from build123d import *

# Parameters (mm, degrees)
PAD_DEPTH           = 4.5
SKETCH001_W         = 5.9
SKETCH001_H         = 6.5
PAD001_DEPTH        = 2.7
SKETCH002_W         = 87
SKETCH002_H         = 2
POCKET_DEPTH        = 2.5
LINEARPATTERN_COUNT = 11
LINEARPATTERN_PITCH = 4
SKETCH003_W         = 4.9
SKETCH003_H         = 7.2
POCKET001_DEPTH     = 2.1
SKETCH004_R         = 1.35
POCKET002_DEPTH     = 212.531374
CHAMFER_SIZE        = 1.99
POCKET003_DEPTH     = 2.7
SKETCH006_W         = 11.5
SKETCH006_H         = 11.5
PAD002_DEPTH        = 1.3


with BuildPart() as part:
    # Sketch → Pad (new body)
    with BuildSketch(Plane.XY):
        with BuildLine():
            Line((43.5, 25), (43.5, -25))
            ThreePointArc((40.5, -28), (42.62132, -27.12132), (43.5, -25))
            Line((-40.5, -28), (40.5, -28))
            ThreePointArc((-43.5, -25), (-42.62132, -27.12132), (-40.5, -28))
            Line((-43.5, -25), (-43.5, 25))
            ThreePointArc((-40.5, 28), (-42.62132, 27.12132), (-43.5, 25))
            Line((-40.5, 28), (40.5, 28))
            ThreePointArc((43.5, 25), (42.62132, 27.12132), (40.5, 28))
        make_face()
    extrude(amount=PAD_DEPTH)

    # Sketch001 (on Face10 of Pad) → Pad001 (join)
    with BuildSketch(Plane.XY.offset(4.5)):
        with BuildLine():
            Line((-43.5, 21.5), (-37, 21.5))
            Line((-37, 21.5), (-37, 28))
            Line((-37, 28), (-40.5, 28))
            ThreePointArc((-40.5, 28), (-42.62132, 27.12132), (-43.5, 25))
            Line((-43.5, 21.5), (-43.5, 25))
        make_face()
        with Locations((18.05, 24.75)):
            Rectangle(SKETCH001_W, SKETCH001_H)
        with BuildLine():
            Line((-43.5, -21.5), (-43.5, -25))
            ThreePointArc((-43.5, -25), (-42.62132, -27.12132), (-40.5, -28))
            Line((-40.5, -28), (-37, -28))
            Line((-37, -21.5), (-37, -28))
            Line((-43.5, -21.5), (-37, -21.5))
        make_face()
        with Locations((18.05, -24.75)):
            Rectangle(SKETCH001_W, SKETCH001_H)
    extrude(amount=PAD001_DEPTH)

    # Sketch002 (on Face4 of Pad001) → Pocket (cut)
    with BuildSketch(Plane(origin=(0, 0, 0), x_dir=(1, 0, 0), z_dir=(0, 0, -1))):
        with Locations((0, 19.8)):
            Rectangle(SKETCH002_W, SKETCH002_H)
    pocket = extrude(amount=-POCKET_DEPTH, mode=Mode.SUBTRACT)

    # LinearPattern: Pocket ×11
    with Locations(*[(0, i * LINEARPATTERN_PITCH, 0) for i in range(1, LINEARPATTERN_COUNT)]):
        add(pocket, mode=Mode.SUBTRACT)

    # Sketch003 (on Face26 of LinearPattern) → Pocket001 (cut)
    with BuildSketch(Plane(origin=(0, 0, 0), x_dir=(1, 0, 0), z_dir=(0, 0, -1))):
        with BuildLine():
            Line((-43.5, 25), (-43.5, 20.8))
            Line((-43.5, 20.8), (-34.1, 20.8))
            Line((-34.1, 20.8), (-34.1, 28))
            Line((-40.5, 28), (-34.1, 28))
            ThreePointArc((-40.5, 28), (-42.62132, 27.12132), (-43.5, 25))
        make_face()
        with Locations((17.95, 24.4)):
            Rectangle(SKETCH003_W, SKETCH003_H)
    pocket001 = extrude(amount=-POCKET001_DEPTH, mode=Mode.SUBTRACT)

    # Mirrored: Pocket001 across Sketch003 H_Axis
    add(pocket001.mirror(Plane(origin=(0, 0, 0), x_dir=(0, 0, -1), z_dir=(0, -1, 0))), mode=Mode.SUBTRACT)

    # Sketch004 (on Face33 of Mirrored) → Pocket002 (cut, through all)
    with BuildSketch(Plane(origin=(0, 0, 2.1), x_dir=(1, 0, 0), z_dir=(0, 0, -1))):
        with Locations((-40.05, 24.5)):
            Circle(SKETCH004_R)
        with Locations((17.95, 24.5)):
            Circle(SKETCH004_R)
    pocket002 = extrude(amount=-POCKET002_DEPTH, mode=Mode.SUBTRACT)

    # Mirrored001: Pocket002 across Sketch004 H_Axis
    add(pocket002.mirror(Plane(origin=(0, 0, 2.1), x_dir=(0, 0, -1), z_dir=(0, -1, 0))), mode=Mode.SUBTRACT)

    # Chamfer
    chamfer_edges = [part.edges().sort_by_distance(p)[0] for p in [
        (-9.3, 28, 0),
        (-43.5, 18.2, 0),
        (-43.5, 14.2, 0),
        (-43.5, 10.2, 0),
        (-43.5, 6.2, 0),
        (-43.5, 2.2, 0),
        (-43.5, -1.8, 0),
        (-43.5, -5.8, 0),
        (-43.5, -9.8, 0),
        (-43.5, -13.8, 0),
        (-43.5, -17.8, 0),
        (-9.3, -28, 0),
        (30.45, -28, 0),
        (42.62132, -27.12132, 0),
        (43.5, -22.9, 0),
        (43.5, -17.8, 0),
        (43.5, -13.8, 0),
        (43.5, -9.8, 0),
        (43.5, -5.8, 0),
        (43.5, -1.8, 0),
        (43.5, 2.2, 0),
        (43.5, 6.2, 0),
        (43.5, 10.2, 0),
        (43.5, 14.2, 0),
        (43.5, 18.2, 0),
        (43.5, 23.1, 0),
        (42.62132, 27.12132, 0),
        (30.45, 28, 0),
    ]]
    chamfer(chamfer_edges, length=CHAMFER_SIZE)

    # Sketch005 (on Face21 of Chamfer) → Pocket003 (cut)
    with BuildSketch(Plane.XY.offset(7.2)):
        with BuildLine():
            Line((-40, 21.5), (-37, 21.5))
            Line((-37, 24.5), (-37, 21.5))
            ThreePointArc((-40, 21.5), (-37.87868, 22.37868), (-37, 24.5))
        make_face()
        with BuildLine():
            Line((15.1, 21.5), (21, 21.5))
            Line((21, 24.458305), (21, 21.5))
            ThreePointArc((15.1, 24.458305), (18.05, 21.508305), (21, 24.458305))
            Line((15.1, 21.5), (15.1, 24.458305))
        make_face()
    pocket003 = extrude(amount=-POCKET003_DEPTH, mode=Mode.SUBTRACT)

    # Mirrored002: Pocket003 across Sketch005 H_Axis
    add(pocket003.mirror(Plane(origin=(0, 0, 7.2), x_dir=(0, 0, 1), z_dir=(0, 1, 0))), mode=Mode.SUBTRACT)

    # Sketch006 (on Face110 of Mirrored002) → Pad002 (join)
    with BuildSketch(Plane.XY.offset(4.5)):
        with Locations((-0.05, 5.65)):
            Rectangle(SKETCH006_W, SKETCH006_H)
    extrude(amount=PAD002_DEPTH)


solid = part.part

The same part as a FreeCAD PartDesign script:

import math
import FreeCAD as App
import Part
import Sketcher
from FreeCAD import Vector


def edges_at(feature, points):
    """Names of the edges that pass closest to the given points."""
    edges = feature.Shape.Edges
    near = lambda p: min(range(len(edges)), key=lambda i: edges[i].distToShape(Part.Vertex(*p))[0])
    return sorted({f"Edge{near(p) + 1}" for p in points})


def add_polygon(sketch, points):
    """Adds a closed chain of lines whose ends are joined by coincident constraints."""
    first, n = sketch.GeometryCount, len(points)
    for a, b in zip(points, points[1:] + points[:1]):
        sketch.addGeometry(Part.LineSegment(App.Vector(*a, 0), App.Vector(*b, 0)), False)
    for i in range(n):
        sketch.addConstraint(Sketcher.Constraint("Coincident", first + i, 2, first + (i + 1) % n, 1))

doc = App.newDocument("Part")
body = doc.addObject("PartDesign::Body", "Body")

# Sketch on XY plane
sketch1 = doc.addObject("Sketcher::SketchObject", "Sketch")
body.addObject(sketch1)
sketch1.AttachmentSupport = (doc.XY_Plane, [""])
sketch1.MapMode = "FlatFace"
sketch1.addGeometry([
    Part.LineSegment(Vector(43.5, -25, 0), Vector(43.5, 25, 0)),  # 0
    Part.ArcOfCircle(Part.Circle(Vector(40.5, 25, 0), Vector(0, 0, 1), 3), math.radians(0), math.radians(90)),  # 1
    Part.LineSegment(Vector(40.5, 28, 0), Vector(-40.5, 28, 0)),  # 2
    Part.ArcOfCircle(Part.Circle(Vector(-40.5, 25, 0), Vector(0, 0, 1), 3), math.radians(90), math.radians(180)),  # 3
    Part.LineSegment(Vector(-43.5, 25, 0), Vector(-43.5, -25, 0)),  # 4
    Part.ArcOfCircle(Part.Circle(Vector(-40.5, -25, 0), Vector(0, 0, 1), 3), math.radians(-180), math.radians(-90)),  # 5
    Part.LineSegment(Vector(-40.5, -28, 0), Vector(40.5, -28, 0)),  # 6
    Part.ArcOfCircle(Part.Circle(Vector(40.5, -25, 0), Vector(0, 0, 1), 3), math.radians(-90), math.radians(0)),  # 7
], False)
sketch1.addConstraint([
    Sketcher.Constraint("Tangent", 0, 2, 1, 1),
    Sketcher.Constraint("Tangent", 1, 2, 2, 1),
    Sketcher.Constraint("Tangent", 2, 2, 3, 1),
    Sketcher.Constraint("Tangent", 3, 2, 4, 1),
    Sketcher.Constraint("Tangent", 4, 2, 5, 1),
    Sketcher.Constraint("Tangent", 5, 2, 6, 1),
    Sketcher.Constraint("Tangent", 6, 2, 7, 1),
    Sketcher.Constraint("Tangent", 7, 2, 0, 1),
    Sketcher.Constraint("Vertical", 0),
    Sketcher.Constraint("Horizontal", 2),
    Sketcher.Constraint("Vertical", 4),
    Sketcher.Constraint("Horizontal", 6),
    Sketcher.Constraint("Equal", 1, 3),
    Sketcher.Constraint("Equal", 3, 5),
    Sketcher.Constraint("Equal", 5, 7),
    Sketcher.Constraint("Symmetric", 1, 3, 5, 3, -1, 1),
    Sketcher.Constraint("Radius", 1, 3.000001),
    Sketcher.Constraint("DistanceX", 2, 2, 2, 1, 81.0),
    Sketcher.Constraint("DistanceY", 0, 1, 0, 2, 50.0),
])
pad1 = doc.addObject("PartDesign::Pad", "Pad")
body.addObject(pad1)
pad1.Profile = sketch1
pad1.Length = 4.5

# Sketch on XY plane
sketch2 = doc.addObject("Sketcher::SketchObject", "Sketch001")
body.addObject(sketch2)
sketch2.AttachmentSupport = (doc.XY_Plane, [""])
sketch2.MapMode = "FlatFace"
sketch2.AttachmentOffset = App.Placement(Vector(0, 0, 4.5), App.Rotation())
sketch2.addGeometry(Part.LineSegment(Vector(-43.5, 21.5, 0), Vector(-37, 21.5, 0)), False)  # 0
sketch2.addGeometry(Part.LineSegment(Vector(-37, 21.5, 0), Vector(-37, 28, 0)), False)  # 1
sketch2.addGeometry(Part.LineSegment(Vector(-37, 28, 0), Vector(-40.5, 28, 0)), False)  # 2
sketch2.addGeometry(Part.ArcOfCircle(Part.Circle(Vector(-40.5, 25, 0), Vector(0, 0, 1), 3), math.radians(90), math.radians(180)), False)  # 3
sketch2.addGeometry(Part.LineSegment(Vector(-43.5, 25, 0), Vector(-43.5, 21.5, 0)), False)  # 4
add_polygon(sketch2, [(15.1, 28), (15.1, 21.5), (21, 21.5), (21, 28)])  # lines 5-8
sketch2.addGeometry(Part.LineSegment(Vector(-43.5, -21.5, 0), Vector(-43.5, -25, 0)), False)  # 9
sketch2.addGeometry(Part.ArcOfCircle(Part.Circle(Vector(-40.5, -25, 0), Vector(0, 0, 1), 3), math.radians(-180), math.radians(-90)), False)  # 10
sketch2.addGeometry(Part.LineSegment(Vector(-40.5, -28, 0), Vector(-37, -28, 0)), False)  # 11
sketch2.addGeometry(Part.LineSegment(Vector(-37, -28, 0), Vector(-37, -21.5, 0)), False)  # 12
sketch2.addGeometry(Part.LineSegment(Vector(-37, -21.5, 0), Vector(-43.5, -21.5, 0)), False)  # 13
add_polygon(sketch2, [(15.1, -21.5), (15.1, -28), (21, -28), (21, -21.5)])  # lines 14-17
sketch2.addConstraint([
    Sketcher.Constraint("Coincident", 0, 2, 1, 1),
    Sketcher.Constraint("Coincident", 1, 2, 2, 1),
    Sketcher.Constraint("Tangent", 2, 2, 3, 1),
    Sketcher.Constraint("Tangent", 3, 2, 4, 1),
    Sketcher.Constraint("Coincident", 4, 2, 0, 1),
    Sketcher.Constraint("Tangent", 9, 2, 10, 1),
    Sketcher.Constraint("Tangent", 10, 2, 11, 1),
    Sketcher.Constraint("Coincident", 11, 2, 12, 1),
    Sketcher.Constraint("Coincident", 12, 2, 13, 1),
    Sketcher.Constraint("Coincident", 13, 2, 9, 1),
    Sketcher.Constraint("Horizontal", 0),
    Sketcher.Constraint("Vertical", 1),
    Sketcher.Constraint("Horizontal", 2),
    Sketcher.Constraint("Vertical", 4),
    Sketcher.Constraint("Vertical", 5),
    Sketcher.Constraint("Horizontal", 6),
    Sketcher.Constraint("Vertical", 7),
    Sketcher.Constraint("Horizontal", 8),
    Sketcher.Constraint("Vertical", 9),
    Sketcher.Constraint("Horizontal", 11),
    Sketcher.Constraint("Vertical", 12),
    Sketcher.Constraint("Horizontal", 13),
    Sketcher.Constraint("Vertical", 14),
    Sketcher.Constraint("Horizontal", 15),
    Sketcher.Constraint("Vertical", 16),
    Sketcher.Constraint("Horizontal", 17),
    Sketcher.Constraint("Equal", 3, 10),
    Sketcher.Constraint("Symmetric", 3, 3, 10, 3, -1),
    Sketcher.Constraint("Symmetric", 0, 2, 12, 2, -1),
    Sketcher.Constraint("Symmetric", 8, 2, 14, 2, -1),
    Sketcher.Constraint("Symmetric", 6, 2, 16, 2, -1),
    Sketcher.Constraint("Horizontal", 4, 2, 5, 2),
    Sketcher.Constraint("Horizontal", 2, 2, 7, 2),
    Sketcher.Constraint("Equal", 13, 1),
    Sketcher.Constraint("Radius", 3, 3.000001),
    Sketcher.Constraint("DistanceX", 0, 1, 0, 2, 6.5),
    Sketcher.Constraint("DistanceX", 6, 1, 6, 2, 5.9),
    Sketcher.Constraint("DistanceY", -1, 1, 3, 3, 24.999999),
    Sketcher.Constraint("DistanceX", 0, 2, -1, 1, 37.0),
    Sketcher.Constraint("DistanceX", -1, 1, 6, 2, 21.0),
])
pad2 = doc.addObject("PartDesign::Pad", "Pad001")
body.addObject(pad2)
pad2.Profile = sketch2
pad2.Length = 2.7

# Sketch on XY plane
sketch3 = doc.addObject("Sketcher::SketchObject", "Sketch002")
body.addObject(sketch3)
sketch3.AttachmentSupport = (doc.XY_Plane, [""])
sketch3.MapMode = "FlatFace"
add_polygon(sketch3, [(-43.5, -20.8), (-43.5, -18.8), (43.5, -18.8), (43.5, -20.8)])  # lines 0-3
sketch3.addConstraint([
    Sketcher.Constraint("Vertical", 0),
    Sketcher.Constraint("Horizontal", 1),
    Sketcher.Constraint("Vertical", 2),
    Sketcher.Constraint("Horizontal", 3),
    Sketcher.Constraint("DistanceX", 1, 1, 1, 2, 87.0),
    Sketcher.Constraint("DistanceY", 0, 1, 0, 2, 2.0),
    Sketcher.Constraint("DistanceX", 0, 2, -1, 1, 43.5),
    Sketcher.Constraint("DistanceY", 0, 2, -1, 1, 18.8),
])
pocket1 = doc.addObject("PartDesign::Pocket", "Pocket")
body.addObject(pocket1)
pocket1.Profile = sketch3
pocket1.Length = 2.5
pocket1.Reversed = True
doc.recompute()

linearpattern = doc.addObject("PartDesign::LinearPattern", "LinearPattern")
body.addObject(linearpattern)
linearpattern.Originals = [pocket1]
linearpattern.Direction = (doc.Y_Axis, [""])
linearpattern.Mode = "offset"
linearpattern.Offset = 4
linearpattern.Occurrences = 11
body.Tip = linearpattern

# Sketch on XY plane
sketch4 = doc.addObject("Sketcher::SketchObject", "Sketch003")
body.addObject(sketch4)
sketch4.AttachmentSupport = (doc.XY_Plane, [""])
sketch4.MapMode = "FlatFace"
sketch4.addGeometry(Part.LineSegment(Vector(-43.5, -25, 0), Vector(-43.5, -20.8, 0)), False)  # 0
sketch4.addGeometry(Part.LineSegment(Vector(-43.5, -20.8, 0), Vector(-34.1, -20.8, 0)), False)  # 1
sketch4.addGeometry(Part.LineSegment(Vector(-34.1, -20.8, 0), Vector(-34.1, -28, 0)), False)  # 2
sketch4.addGeometry(Part.LineSegment(Vector(-34.1, -28, 0), Vector(-40.5, -28, 0)), False)  # 3
sketch4.addGeometry(Part.ArcOfCircle(Part.Circle(Vector(-40.5, -25, 0), Vector(0, 0, 1), 3), math.radians(-180), math.radians(-90)), False)  # 4
add_polygon(sketch4, [(15.5, -28), (15.5, -20.8), (20.4, -20.8), (20.4, -28)])  # lines 5-8
sketch4.addConstraint([
    Sketcher.Constraint("Coincident", 0, 2, 1, 1),
    Sketcher.Constraint("Coincident", 1, 2, 2, 1),
    Sketcher.Constraint("Coincident", 2, 2, 3, 1),
    Sketcher.Constraint("Tangent", 3, 2, 4, 2),
    Sketcher.Constraint("Tangent", 4, 1, 0, 1),
    Sketcher.Constraint("Vertical", 0),
    Sketcher.Constraint("Horizontal", 1),
    Sketcher.Constraint("Vertical", 2),
    Sketcher.Constraint("Horizontal", 3),
    Sketcher.Constraint("Vertical", 5),
    Sketcher.Constraint("Horizontal", 6),
    Sketcher.Constraint("Vertical", 7),
    Sketcher.Constraint("Horizontal", 8),
    Sketcher.Constraint("Horizontal", 1, 2, 5, 2),
    Sketcher.Constraint("Horizontal", 3, 2, 7, 2),
    Sketcher.Constraint("Radius", 4, 3.000001),
    Sketcher.Constraint("DistanceX", 1, 1, 1, 2, 9.4),
    Sketcher.Constraint("DistanceX", 6, 1, 6, 2, 4.9),
    Sketcher.Constraint("DistanceY", 0, 1, 0, 2, 4.2),
    Sketcher.Constraint("DistanceY", 4, 3, -1, 1, 24.999999),
    Sketcher.Constraint("DistanceX", 4, 3, 5, 2, 55.999999),
    Sketcher.Constraint("DistanceX", 4, 3, -1, 1, 40.499999),
])
pocket2 = doc.addObject("PartDesign::Pocket", "Pocket001")
body.addObject(pocket2)
pocket2.Profile = sketch4
pocket2.Length = 2.1
pocket2.Reversed = True
doc.recompute()

mirrored = doc.addObject("PartDesign::Mirrored", "Mirrored")
body.addObject(mirrored)
mirrored.Originals = [pocket2]
mirrored.MirrorPlane = (doc.XZ_Plane, [""])
body.Tip = mirrored

# Sketch on XY plane
sketch5 = doc.addObject("Sketcher::SketchObject", "Sketch004")
body.addObject(sketch5)
sketch5.AttachmentSupport = (doc.XY_Plane, [""])
sketch5.MapMode = "FlatFace"
sketch5.AttachmentOffset = App.Placement(Vector(0, 0, 2.1), App.Rotation())
sketch5.addGeometry([
    Part.Circle(Vector(-40, -24.5, 0), Vector(0, 0, 1), 1.4),
    Part.Circle(Vector(17.9, -24.5, 0), Vector(0, 0, 1), 1.4),
], False)
sketch5.addConstraint([
    Sketcher.Constraint("Equal", 0, 1),
    Sketcher.Constraint("Horizontal", 0, 3, 1, 3),
    Sketcher.Constraint("Diameter", 0, 2.7),
    Sketcher.Constraint("DistanceX", 0, 3, 1, 3, 58.0),
    Sketcher.Constraint("DistanceY", 0, 3, -1, 1, 24.5),
    Sketcher.Constraint("DistanceX", 0, 3, -1, 1, 40.05),
])
pocket3 = doc.addObject("PartDesign::Pocket", "Pocket002")
body.addObject(pocket3)
pocket3.Profile = sketch5
pocket3.Type = "ThroughAll"
pocket3.Reversed = True
doc.recompute()

mirrored2 = doc.addObject("PartDesign::Mirrored", "Mirrored001")
body.addObject(mirrored2)
mirrored2.Originals = [pocket3]
mirrored2.MirrorPlane = (doc.XZ_Plane, [""])
body.Tip = mirrored2
doc.recompute()

chamfer = doc.addObject("PartDesign::Chamfer", "Chamfer")
body.addObject(chamfer)
chamfer.Base = (mirrored2, edges_at(mirrored2, [
    (-9.3, 28, 0),
    (-43.5, 18.2, 0),
    (-43.5, 14.2, 0),
    (-43.5, 10.2, 0),
    (-43.5, 6.2, 0),
    (-43.5, 2.2, 0),
    (-43.5, -1.8, 0),
    (-43.5, -5.8, 0),
    (-43.5, -9.8, 0),
    (-43.5, -13.8, 0),
    (-43.5, -17.8, 0),
    (-9.3, -28, 0),
    (30.45, -28, 0),
    (42.621, -27.121, 0),
    (43.5, -22.9, 0),
    (43.5, -17.8, 0),
    (43.5, -13.8, 0),
    (43.5, -9.8, 0),
    (43.5, -5.8, 0),
    (43.5, -1.8, 0),
    (43.5, 2.2, 0),
    (43.5, 6.2, 0),
    (43.5, 10.2, 0),
    (43.5, 14.2, 0),
    (43.5, 18.2, 0),
    (43.5, 23.1, 0),
    (42.621, 27.121, 0),
    (30.45, 28, 0),
]))
chamfer.Size = 1.99

# Sketch on XY plane
sketch6 = doc.addObject("Sketcher::SketchObject", "Sketch005")
body.addObject(sketch6)
sketch6.AttachmentSupport = (doc.XY_Plane, [""])
sketch6.MapMode = "FlatFace"
sketch6.AttachmentOffset = App.Placement(Vector(0, 0, 7.2), App.Rotation())
sketch6.addGeometry([
    Part.LineSegment(Vector(-40, 21.5, 0), Vector(-37, 21.5, 0)),  # 0
    Part.LineSegment(Vector(-37, 21.5, 0), Vector(-37, 24.5, 0)),  # 1
    Part.ArcOfCircle(Part.Circle(Vector(-40, 24.5, 0), Vector(0, 0, 1), 3), math.radians(-90), math.radians(0)),  # 2
    Part.LineSegment(Vector(15.1, 21.5, 0), Vector(21, 21.5, 0)),  # 3
    Part.LineSegment(Vector(21, 21.5, 0), Vector(21, 24.5, 0)),  # 4
    Part.ArcOfCircle(Part.Circle(Vector(18.1, 24.5, 0), Vector(0, 0, 1), 3), math.radians(180), math.radians(360)),  # 5
    Part.LineSegment(Vector(15.1, 24.5, 0), Vector(15.1, 21.5, 0)),  # 6
], False)
sketch6.addConstraint([
    Sketcher.Constraint("Coincident", 0, 2, 1, 1),
    Sketcher.Constraint("Tangent", 1, 2, 2, 2),
    Sketcher.Constraint("Tangent", 2, 1, 0, 1),
    Sketcher.Constraint("Coincident", 3, 2, 4, 1),
    Sketcher.Constraint("Tangent", 4, 2, 5, 2),
    Sketcher.Constraint("Tangent", 5, 1, 6, 1),
    Sketcher.Constraint("Coincident", 6, 2, 3, 1),
    Sketcher.Constraint("Horizontal", 0),
    Sketcher.Constraint("Vertical", 1),
    Sketcher.Constraint("Horizontal", 3),
    Sketcher.Constraint("Vertical", 4),
    Sketcher.Constraint("Vertical", 6),
    Sketcher.Constraint("Horizontal", 2, 1, 3, 2),
    Sketcher.Constraint("Radius", 2, 3.000001),
    Sketcher.Constraint("Radius", 5, 2.95),
    Sketcher.Constraint("DistanceX", 2, 3, -1, 1, 40.000001),
    Sketcher.Constraint("DistanceX", -1, 1, 3, 2, 21.0),
    Sketcher.Constraint("DistanceY", -1, 1, 2, 3, 24.500001),
    Sketcher.Constraint("DistanceY", 4, 1, 4, 2, 2.958305),
])
pocket4 = doc.addObject("PartDesign::Pocket", "Pocket003")
body.addObject(pocket4)
pocket4.Profile = sketch6
pocket4.Length = 2.7
doc.recompute()

mirrored3 = doc.addObject("PartDesign::Mirrored", "Mirrored002")
body.addObject(mirrored3)
mirrored3.Originals = [pocket4]
mirrored3.MirrorPlane = (doc.XZ_Plane, [""])
body.Tip = mirrored3

# Sketch on XY plane
sketch7 = doc.addObject("Sketcher::SketchObject", "Sketch006")
body.addObject(sketch7)
sketch7.AttachmentSupport = (doc.XY_Plane, [""])
sketch7.MapMode = "FlatFace"
sketch7.AttachmentOffset = App.Placement(Vector(0, 0, 4.5), App.Rotation())
add_polygon(sketch7, [(-6, 11), (-6, 0), (6, 0), (6, 11)])  # lines 0-3
sketch7.addConstraint([
    Sketcher.Constraint("Vertical", 0),
    Sketcher.Constraint("Horizontal", 1),
    Sketcher.Constraint("Vertical", 2),
    Sketcher.Constraint("Horizontal", 3),
    Sketcher.Constraint("Equal", 3, 0),
    Sketcher.Constraint("DistanceX", 1, 1, 1, 2, 11.5),
    Sketcher.Constraint("DistanceX", 0, 2, -1, 1, 5.8),
    Sketcher.Constraint("DistanceY", 0, 2, -1, 1, 0.1),
])
pad3 = doc.addObject("PartDesign::Pad", "Pad002")
body.addObject(pad3)
pad3.Profile = sketch7
pad3.Length = 1.3

doc.recompute()
